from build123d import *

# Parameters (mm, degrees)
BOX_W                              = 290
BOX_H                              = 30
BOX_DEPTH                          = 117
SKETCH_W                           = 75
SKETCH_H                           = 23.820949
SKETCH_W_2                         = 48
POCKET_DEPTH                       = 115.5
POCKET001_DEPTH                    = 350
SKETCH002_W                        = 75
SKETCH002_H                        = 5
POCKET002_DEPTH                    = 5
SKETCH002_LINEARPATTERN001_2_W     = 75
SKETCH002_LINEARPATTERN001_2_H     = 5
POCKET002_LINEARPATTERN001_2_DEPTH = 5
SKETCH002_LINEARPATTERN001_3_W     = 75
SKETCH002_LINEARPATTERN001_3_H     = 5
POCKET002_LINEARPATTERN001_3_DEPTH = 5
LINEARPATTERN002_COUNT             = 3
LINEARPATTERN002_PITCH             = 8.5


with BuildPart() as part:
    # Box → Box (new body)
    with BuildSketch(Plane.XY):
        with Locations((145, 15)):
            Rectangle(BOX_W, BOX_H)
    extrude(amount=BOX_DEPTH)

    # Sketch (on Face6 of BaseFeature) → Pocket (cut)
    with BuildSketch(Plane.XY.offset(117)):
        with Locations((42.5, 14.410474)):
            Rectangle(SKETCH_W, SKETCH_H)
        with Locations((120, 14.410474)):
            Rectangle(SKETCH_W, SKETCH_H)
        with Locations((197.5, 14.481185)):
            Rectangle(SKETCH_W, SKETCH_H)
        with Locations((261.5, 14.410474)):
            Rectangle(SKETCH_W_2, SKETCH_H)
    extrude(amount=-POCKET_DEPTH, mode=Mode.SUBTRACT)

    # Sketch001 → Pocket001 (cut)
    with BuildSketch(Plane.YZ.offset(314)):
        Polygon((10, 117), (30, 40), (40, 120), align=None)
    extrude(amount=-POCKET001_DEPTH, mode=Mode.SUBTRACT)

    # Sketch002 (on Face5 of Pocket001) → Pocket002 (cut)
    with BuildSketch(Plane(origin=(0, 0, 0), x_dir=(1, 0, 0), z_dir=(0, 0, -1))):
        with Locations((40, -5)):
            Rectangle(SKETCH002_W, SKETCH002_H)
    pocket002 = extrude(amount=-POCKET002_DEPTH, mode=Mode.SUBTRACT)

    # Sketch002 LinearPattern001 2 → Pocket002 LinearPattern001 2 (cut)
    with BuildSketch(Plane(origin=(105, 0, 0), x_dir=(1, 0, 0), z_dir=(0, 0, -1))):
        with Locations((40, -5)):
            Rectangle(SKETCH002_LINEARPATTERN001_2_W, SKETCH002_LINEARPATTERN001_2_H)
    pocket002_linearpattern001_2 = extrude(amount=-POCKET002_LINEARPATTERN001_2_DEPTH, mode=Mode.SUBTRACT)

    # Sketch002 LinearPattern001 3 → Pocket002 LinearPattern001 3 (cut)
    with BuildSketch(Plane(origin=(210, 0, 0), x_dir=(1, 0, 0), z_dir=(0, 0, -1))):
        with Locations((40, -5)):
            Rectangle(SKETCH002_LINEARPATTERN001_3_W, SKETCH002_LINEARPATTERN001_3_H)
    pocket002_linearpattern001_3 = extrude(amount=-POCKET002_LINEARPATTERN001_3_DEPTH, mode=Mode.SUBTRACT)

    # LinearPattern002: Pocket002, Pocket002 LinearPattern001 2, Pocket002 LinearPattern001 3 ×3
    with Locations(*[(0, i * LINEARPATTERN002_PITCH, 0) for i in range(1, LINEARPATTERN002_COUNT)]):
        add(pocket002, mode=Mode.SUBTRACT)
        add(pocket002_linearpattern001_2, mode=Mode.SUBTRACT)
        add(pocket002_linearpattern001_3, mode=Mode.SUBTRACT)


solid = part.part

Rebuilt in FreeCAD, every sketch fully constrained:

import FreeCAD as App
import Part
import Sketcher
from FreeCAD import Vector
Q = App.Units.Quantity

doc = App.newDocument("Part")
body = doc.addObject("PartDesign::Body", "Body")

sketch1 = body.newObject("Sketcher::SketchObject", "Sketch")
sketch1.AttachmentSupport = (doc.getObject("XY_Plane"), [""])
sketch1.MapMode = "FlatFace"
sketch1.addGeometry(Part.LineSegment(Vector(0, 30, 0), Vector(0, 0, 0)), False)
sketch1.addGeometry(Part.LineSegment(Vector(0, 0, 0), Vector(290, 0, 0)), False)
sketch1.addGeometry(Part.LineSegment(Vector(290, 0, 0), Vector(290, 30, 0)), False)
sketch1.addGeometry(Part.LineSegment(Vector(290, 30, 0), Vector(0, 30, 0)), False)
sketch1.addConstraint(Sketcher.Constraint("Coincident", 0, 2, 1, 1))
sketch1.addConstraint(Sketcher.Constraint("Coincident", 1, 2, 2, 1))
sketch1.addConstraint(Sketcher.Constraint("Coincident", 2, 2, 3, 1))
sketch1.addConstraint(Sketcher.Constraint("Coincident", 3, 2, 0, 1))
sketch1.addConstraint(Sketcher.Constraint("Vertical", 0))
sketch1.addConstraint(Sketcher.Constraint("Horizontal", 1))
sketch1.addConstraint(Sketcher.Constraint("Vertical", 2))
sketch1.addConstraint(Sketcher.Constraint("Horizontal", 3))
sketch1.addConstraint(Sketcher.Constraint("Coincident", 0, 2, -1, 1))
sketch1.addConstraint(Sketcher.Constraint("DistanceX", 1, 1, 1, 2, Q("290 mm")))
sketch1.addConstraint(Sketcher.Constraint("DistanceY", 0, 2, 0, 1, Q("30 mm")))
pad1 = body.newObject("PartDesign::Pad", "Pad")
pad1.Profile = sketch1
pad1.Length = 117

sketch2 = body.newObject("Sketcher::SketchObject", "Sketch001")
sketch2.AttachmentSupport = (doc.getObject("XY_Plane"), [""])
sketch2.MapMode = "FlatFace"
sketch2.AttachmentOffset = App.Placement(Vector(0, 0, 117), App.Rotation())
sketch2.addGeometry(Part.LineSegment(Vector(5, 26, 0), Vector(5, 2, 0)), False)
sketch2.addGeometry(Part.LineSegment(Vector(5, 2, 0), Vector(80, 2, 0)), False)
sketch2.addGeometry(Part.LineSegment(Vector(80, 2, 0), Vector(80, 26, 0)), False)
sketch2.addGeometry(Part.LineSegment(Vector(80, 26, 0), Vector(5, 26, 0)), False)
sketch2.addGeometry(Part.LineSegment(Vector(82, 26, 0), Vector(82, 2, 0)), False)
sketch2.addGeometry(Part.LineSegment(Vector(82, 2, 0), Vector(158, 2, 0)), False)
sketch2.addGeometry(Part.LineSegment(Vector(158, 2, 0), Vector(158, 26, 0)), False)
sketch2.addGeometry(Part.LineSegment(Vector(158, 26, 0), Vector(82, 26, 0)), False)
sketch2.addGeometry(Part.LineSegment(Vector(160, 26, 0), Vector(160, 3, 0)), False)
sketch2.addGeometry(Part.LineSegment(Vector(160, 3, 0), Vector(235, 3, 0)), False)
sketch2.addGeometry(Part.LineSegment(Vector(235, 3, 0), Vector(235, 26, 0)), False)
sketch2.addGeometry(Part.LineSegment(Vector(235, 26, 0), Vector(160, 26, 0)), False)
sketch2.addGeometry(Part.LineSegment(Vector(238, 26, 0), Vector(238, 2, 0)), False)
sketch2.addGeometry(Part.LineSegment(Vector(238, 2, 0), Vector(286, 2, 0)), False)
sketch2.addGeometry(Part.LineSegment(Vector(286, 2, 0), Vector(286, 26, 0)), False)
sketch2.addGeometry(Part.LineSegment(Vector(286, 26, 0), Vector(238, 26, 0)), False)
sketch2.addConstraint(Sketcher.Constraint("Coincident", 0, 2, 1, 1))
sketch2.addConstraint(Sketcher.Constraint("Coincident", 1, 2, 2, 1))
sketch2.addConstraint(Sketcher.Constraint("Coincident", 2, 2, 3, 1))
sketch2.addConstraint(Sketcher.Constraint("Coincident", 3, 2, 0, 1))
sketch2.addConstraint(Sketcher.Constraint("Coincident", 4, 2, 5, 1))
sketch2.addConstraint(Sketcher.Constraint("Coincident", 5, 2, 6, 1))
sketch2.addConstraint(Sketcher.Constraint("Coincident", 6, 2, 7, 1))
sketch2.addConstraint(Sketcher.Constraint("Coincident", 7, 2, 4, 1))
sketch2.addConstraint(Sketcher.Constraint("Coincident", 8, 2, 9, 1))
sketch2.addConstraint(Sketcher.Constraint("Coincident", 9, 2, 10, 1))
sketch2.addConstraint(Sketcher.Constraint("Coincident", 10, 2, 11, 1))
sketch2.addConstraint(Sketcher.Constraint("Coincident", 11, 2, 8, 1))
sketch2.addConstraint(Sketcher.Constraint("Coincident", 12, 2, 13, 1))
sketch2.addConstraint(Sketcher.Constraint("Coincident", 13, 2, 14, 1))
sketch2.addConstraint(Sketcher.Constraint("Coincident", 14, 2, 15, 1))
sketch2.addConstraint(Sketcher.Constraint("Coincident", 15, 2, 12, 1))
sketch2.addConstraint(Sketcher.Constraint("Vertical", 0))
sketch2.addConstraint(Sketcher.Constraint("Horizontal", 1))
sketch2.addConstraint(Sketcher.Constraint("Vertical", 2))
sketch2.addConstraint(Sketcher.Constraint("Horizontal", 3))
sketch2.addConstraint(Sketcher.Constraint("Vertical", 4))
sketch2.addConstraint(Sketcher.Constraint("Horizontal", 5))
sketch2.addConstraint(Sketcher.Constraint("Vertical", 6))
sketch2.addConstraint(Sketcher.Constraint("Horizontal", 7))
sketch2.addConstraint(Sketcher.Constraint("Vertical", 8))
sketch2.addConstraint(Sketcher.Constraint("Horizontal", 9))
sketch2.addConstraint(Sketcher.Constraint("Vertical", 10))
sketch2.addConstraint(Sketcher.Constraint("Horizontal", 11))
sketch2.addConstraint(Sketcher.Constraint("Vertical", 12))
sketch2.addConstraint(Sketcher.Constraint("Horizontal", 13))
sketch2.addConstraint(Sketcher.Constraint("Vertical", 14))
sketch2.addConstraint(Sketcher.Constraint("Horizontal", 15))
sketch2.addConstraint(Sketcher.Constraint("Horizontal", 1, 2, 4, 2))
sketch2.addConstraint(Sketcher.Constraint("Horizontal", 3, 2, 6, 2))
sketch2.addConstraint(Sketcher.Constraint("Horizontal", 5, 2, 12, 2))
sketch2.addConstraint(Sketcher.Constraint("Horizontal", 7, 2, 14, 2))
sketch2.addConstraint(Sketcher.Constraint("Equal", 3, 5))
sketch2.addConstraint(Sketcher.Constraint("Equal", 7, 9))
sketch2.addConstraint(Sketcher.Constraint("Equal", 6, 8))
sketch2.addConstraint(Sketcher.Constraint("DistanceX", 1, 1, 1, 2, Q("75 mm")))
sketch2.addConstraint(Sketcher.Constraint("DistanceX", 13, 1, 13, 2, Q("48 mm")))
sketch2.addConstraint(Sketcher.Constraint("DistanceX", -1, 1, 0, 2, Q("5 mm")))
sketch2.addConstraint(Sketcher.Constraint("DistanceX", -1, 1, 8, 2, Q("160 mm")))
sketch2.addConstraint(Sketcher.Constraint("DistanceX", 5, 2, 12, 2, Q("80 mm")))
sketch2.addConstraint(Sketcher.Constraint("DistanceY", -1, 1, 0, 2, Q("2.499999 mm")))
sketch2.addConstraint(Sketcher.Constraint("DistanceX", -1, 1, 4, 2, Q("82.5 mm")))
sketch2.addConstraint(Sketcher.Constraint("DistanceY", 0, 2, 0, 1, Q("23.820949 mm")))
sketch2.addConstraint(Sketcher.Constraint("DistanceY", -1, 1, 8, 2, Q("2.570711 mm")))
pocket1 = body.newObject("PartDesign::Pocket", "Pocket")
pocket1.Profile = sketch2
pocket1.Length = 115.5

sketch3 = body.newObject("Sketcher::SketchObject", "Sketch002")
sketch3.AttachmentSupport = (doc.getObject("YZ_Plane"), [""])
sketch3.MapMode = "FlatFace"
sketch3.AttachmentOffset = App.Placement(Vector(0, 0, 314), App.Rotation())
sketch3.addGeometry(Part.LineSegment(Vector(10, 117, 0), Vector(30, 40, 0)), False)
sketch3.addGeometry(Part.LineSegment(Vector(30, 40, 0), Vector(40, 120, 0)), False)
sketch3.addGeometry(Part.LineSegment(Vector(40, 120, 0), Vector(10, 117, 0)), False)
sketch3.addConstraint(Sketcher.Constraint("Coincident", 0, 2, 1, 1))
sketch3.addConstraint(Sketcher.Constraint("Coincident", 1, 2, 2, 1))
sketch3.addConstraint(Sketcher.Constraint("Coincident", 2, 2, 0, 1))
sketch3.addConstraint(Sketcher.Constraint("DistanceX", -1, 1, 0, 2, Q("30 mm")))
sketch3.addConstraint(Sketcher.Constraint("DistanceY", -1, 1, 0, 2, Q("40 mm")))
sketch3.addConstraint(Sketcher.Constraint("DistanceX", -1, 1, 1, 2, Q("40 mm")))
sketch3.addConstraint(Sketcher.Constraint("DistanceY", -1, 1, 1, 2, Q("120 mm")))
sketch3.addConstraint(Sketcher.Constraint("DistanceX", -1, 1, 2, 2, Q("10 mm")))
sketch3.addConstraint(Sketcher.Constraint("DistanceY", -1, 1, 2, 2, Q("117 mm")))
pocket2 = body.newObject("PartDesign::Pocket", "Pocket001")
pocket2.Profile = sketch3
pocket2.Length = 350

sketch4 = body.newObject("Sketcher::SketchObject", "Sketch003")
sketch4.AttachmentSupport = (doc.getObject("XY_Plane"), [""])
sketch4.MapMode = "FlatFace"
sketch4.addGeometry(Part.LineSegment(Vector(2, 2, 0), Vector(2, 8, 0)), False)
sketch4.addGeometry(Part.LineSegment(Vector(2, 8, 0), Vector(78, 8, 0)), False)
sketch4.addGeometry(Part.LineSegment(Vector(78, 8, 0), Vector(78, 2, 0)), False)
sketch4.addGeometry(Part.LineSegment(Vector(78, 2, 0), Vector(2, 2, 0)), False)
sketch4.addConstraint(Sketcher.Constraint("Coincident", 0, 2, 1, 1))
sketch4.addConstraint(Sketcher.Constraint("Coincident", 1, 2, 2, 1))
sketch4.addConstraint(Sketcher.Constraint("Coincident", 2, 2, 3, 1))
sketch4.addConstraint(Sketcher.Constraint("Coincident", 3, 2, 0, 1))
sketch4.addConstraint(Sketcher.Constraint("Vertical", 0))
sketch4.addConstraint(Sketcher.Constraint("Horizontal", 1))
sketch4.addConstraint(Sketcher.Constraint("Vertical", 2))
sketch4.addConstraint(Sketcher.Constraint("Horizontal", 3))
sketch4.addConstraint(Sketcher.Constraint("DistanceX", 1, 1, 1, 2, Q("75 mm")))
sketch4.addConstraint(Sketcher.Constraint("DistanceY", 0, 1, 0, 2, Q("5 mm")))
sketch4.addConstraint(Sketcher.Constraint("DistanceX", -1, 1, 0, 2, Q("2.5 mm")))
sketch4.addConstraint(Sketcher.Constraint("DistanceY", -1, 1, 0, 2, Q("7.5 mm")))
pocket3 = body.newObject("PartDesign::Pocket", "Pocket002")
pocket3.Profile = sketch4
pocket3.Length = 5
pocket3.Reversed = True

sketch5 = body.newObject("Sketcher::SketchObject", "Sketch004")
sketch5.AttachmentSupport = (doc.getObject("XY_Plane"), [""])
sketch5.MapMode = "FlatFace"
sketch5.addGeometry(Part.LineSegment(Vector(108, 2, 0), Vector(108, 8, 0)), False)
sketch5.addGeometry(Part.LineSegment(Vector(108, 8, 0), Vector(182, 8, 0)), False)
sketch5.addGeometry(Part.LineSegment(Vector(182, 8, 0), Vector(182, 2, 0)), False)
sketch5.addGeometry(Part.LineSegment(Vector(182, 2, 0), Vector(108, 2, 0)), False)
sketch5.addConstraint(Sketcher.Constraint("Coincident", 0, 2, 1, 1))
sketch5.addConstraint(Sketcher.Constraint("Coincident", 1, 2, 2, 1))
sketch5.addConstraint(Sketcher.Constraint("Coincident", 2, 2, 3, 1))
sketch5.addConstraint(Sketcher.Constraint("Coincident", 3, 2, 0, 1))
sketch5.addConstraint(Sketcher.Constraint("Vertical", 0))
sketch5.addConstraint(Sketcher.Constraint("Horizontal", 1))
sketch5.addConstraint(Sketcher.Constraint("Vertical", 2))
sketch5.addConstraint(Sketcher.Constraint("Horizontal", 3))
sketch5.addConstraint(Sketcher.Constraint("DistanceX", 1, 1, 1, 2, Q("75 mm")))
sketch5.addConstraint(Sketcher.Constraint("DistanceY", 0, 1, 0, 2, Q("5 mm")))
sketch5.addConstraint(Sketcher.Constraint("DistanceX", -1, 1, 0, 2, Q("107.5 mm")))
sketch5.addConstraint(Sketcher.Constraint("DistanceY", -1, 1, 0, 2, Q("7.5 mm")))
pocket4 = body.newObject("PartDesign::Pocket", "Pocket003")
pocket4.Profile = sketch5
pocket4.Length = 5
pocket4.Reversed = True

sketch6 = body.newObject("Sketcher::SketchObject", "Sketch005")
sketch6.AttachmentSupport = (doc.getObject("XY_Plane"), [""])
sketch6.MapMode = "FlatFace"
sketch6.addGeometry(Part.LineSegment(Vector(212, 2, 0), Vector(212, 8, 0)), False)
sketch6.addGeometry(Part.LineSegment(Vector(212, 8, 0), Vector(288, 8, 0)), False)
sketch6.addGeometry(Part.LineSegment(Vector(288, 8, 0), Vector(288, 2, 0)), False)
sketch6.addGeometry(Part.LineSegment(Vector(288, 2, 0), Vector(212, 2, 0)), False)
sketch6.addConstraint(Sketcher.Constraint("Coincident", 0, 2, 1, 1))
sketch6.addConstraint(Sketcher.Constraint("Coincident", 1, 2, 2, 1))
sketch6.addConstraint(Sketcher.Constraint("Coincident", 2, 2, 3, 1))
sketch6.addConstraint(Sketcher.Constraint("Coincident", 3, 2, 0, 1))
sketch6.addConstraint(Sketcher.Constraint("Vertical", 0))
sketch6.addConstraint(Sketcher.Constraint("Horizontal", 1))
sketch6.addConstraint(Sketcher.Constraint("Vertical", 2))
sketch6.addConstraint(Sketcher.Constraint("Horizontal", 3))
sketch6.addConstraint(Sketcher.Constraint("DistanceX", 1, 1, 1, 2, Q("75 mm")))
sketch6.addConstraint(Sketcher.Constraint("DistanceY", 0, 1, 0, 2, Q("5 mm")))
sketch6.addConstraint(Sketcher.Constraint("DistanceX", -1, 1, 0, 2, Q("212.5 mm")))
sketch6.addConstraint(Sketcher.Constraint("DistanceY", -1, 1, 0, 2, Q("7.5 mm")))
pocket5 = body.newObject("PartDesign::Pocket", "Pocket004")
pocket5.Profile = sketch6
pocket5.Length = 5
pocket5.Reversed = True
doc.recompute()

linearpattern = body.newObject("PartDesign::LinearPattern", "LinearPattern")
linearpattern.Originals = [pocket3, pocket4, pocket5]
linearpattern.Direction = (doc.getObject("Y_Axis"), [""])
linearpattern.Mode = "offset"
linearpattern.Offset = 8.5
linearpattern.Occurrences = 3
body.Tip = linearpattern

doc.recompute()
